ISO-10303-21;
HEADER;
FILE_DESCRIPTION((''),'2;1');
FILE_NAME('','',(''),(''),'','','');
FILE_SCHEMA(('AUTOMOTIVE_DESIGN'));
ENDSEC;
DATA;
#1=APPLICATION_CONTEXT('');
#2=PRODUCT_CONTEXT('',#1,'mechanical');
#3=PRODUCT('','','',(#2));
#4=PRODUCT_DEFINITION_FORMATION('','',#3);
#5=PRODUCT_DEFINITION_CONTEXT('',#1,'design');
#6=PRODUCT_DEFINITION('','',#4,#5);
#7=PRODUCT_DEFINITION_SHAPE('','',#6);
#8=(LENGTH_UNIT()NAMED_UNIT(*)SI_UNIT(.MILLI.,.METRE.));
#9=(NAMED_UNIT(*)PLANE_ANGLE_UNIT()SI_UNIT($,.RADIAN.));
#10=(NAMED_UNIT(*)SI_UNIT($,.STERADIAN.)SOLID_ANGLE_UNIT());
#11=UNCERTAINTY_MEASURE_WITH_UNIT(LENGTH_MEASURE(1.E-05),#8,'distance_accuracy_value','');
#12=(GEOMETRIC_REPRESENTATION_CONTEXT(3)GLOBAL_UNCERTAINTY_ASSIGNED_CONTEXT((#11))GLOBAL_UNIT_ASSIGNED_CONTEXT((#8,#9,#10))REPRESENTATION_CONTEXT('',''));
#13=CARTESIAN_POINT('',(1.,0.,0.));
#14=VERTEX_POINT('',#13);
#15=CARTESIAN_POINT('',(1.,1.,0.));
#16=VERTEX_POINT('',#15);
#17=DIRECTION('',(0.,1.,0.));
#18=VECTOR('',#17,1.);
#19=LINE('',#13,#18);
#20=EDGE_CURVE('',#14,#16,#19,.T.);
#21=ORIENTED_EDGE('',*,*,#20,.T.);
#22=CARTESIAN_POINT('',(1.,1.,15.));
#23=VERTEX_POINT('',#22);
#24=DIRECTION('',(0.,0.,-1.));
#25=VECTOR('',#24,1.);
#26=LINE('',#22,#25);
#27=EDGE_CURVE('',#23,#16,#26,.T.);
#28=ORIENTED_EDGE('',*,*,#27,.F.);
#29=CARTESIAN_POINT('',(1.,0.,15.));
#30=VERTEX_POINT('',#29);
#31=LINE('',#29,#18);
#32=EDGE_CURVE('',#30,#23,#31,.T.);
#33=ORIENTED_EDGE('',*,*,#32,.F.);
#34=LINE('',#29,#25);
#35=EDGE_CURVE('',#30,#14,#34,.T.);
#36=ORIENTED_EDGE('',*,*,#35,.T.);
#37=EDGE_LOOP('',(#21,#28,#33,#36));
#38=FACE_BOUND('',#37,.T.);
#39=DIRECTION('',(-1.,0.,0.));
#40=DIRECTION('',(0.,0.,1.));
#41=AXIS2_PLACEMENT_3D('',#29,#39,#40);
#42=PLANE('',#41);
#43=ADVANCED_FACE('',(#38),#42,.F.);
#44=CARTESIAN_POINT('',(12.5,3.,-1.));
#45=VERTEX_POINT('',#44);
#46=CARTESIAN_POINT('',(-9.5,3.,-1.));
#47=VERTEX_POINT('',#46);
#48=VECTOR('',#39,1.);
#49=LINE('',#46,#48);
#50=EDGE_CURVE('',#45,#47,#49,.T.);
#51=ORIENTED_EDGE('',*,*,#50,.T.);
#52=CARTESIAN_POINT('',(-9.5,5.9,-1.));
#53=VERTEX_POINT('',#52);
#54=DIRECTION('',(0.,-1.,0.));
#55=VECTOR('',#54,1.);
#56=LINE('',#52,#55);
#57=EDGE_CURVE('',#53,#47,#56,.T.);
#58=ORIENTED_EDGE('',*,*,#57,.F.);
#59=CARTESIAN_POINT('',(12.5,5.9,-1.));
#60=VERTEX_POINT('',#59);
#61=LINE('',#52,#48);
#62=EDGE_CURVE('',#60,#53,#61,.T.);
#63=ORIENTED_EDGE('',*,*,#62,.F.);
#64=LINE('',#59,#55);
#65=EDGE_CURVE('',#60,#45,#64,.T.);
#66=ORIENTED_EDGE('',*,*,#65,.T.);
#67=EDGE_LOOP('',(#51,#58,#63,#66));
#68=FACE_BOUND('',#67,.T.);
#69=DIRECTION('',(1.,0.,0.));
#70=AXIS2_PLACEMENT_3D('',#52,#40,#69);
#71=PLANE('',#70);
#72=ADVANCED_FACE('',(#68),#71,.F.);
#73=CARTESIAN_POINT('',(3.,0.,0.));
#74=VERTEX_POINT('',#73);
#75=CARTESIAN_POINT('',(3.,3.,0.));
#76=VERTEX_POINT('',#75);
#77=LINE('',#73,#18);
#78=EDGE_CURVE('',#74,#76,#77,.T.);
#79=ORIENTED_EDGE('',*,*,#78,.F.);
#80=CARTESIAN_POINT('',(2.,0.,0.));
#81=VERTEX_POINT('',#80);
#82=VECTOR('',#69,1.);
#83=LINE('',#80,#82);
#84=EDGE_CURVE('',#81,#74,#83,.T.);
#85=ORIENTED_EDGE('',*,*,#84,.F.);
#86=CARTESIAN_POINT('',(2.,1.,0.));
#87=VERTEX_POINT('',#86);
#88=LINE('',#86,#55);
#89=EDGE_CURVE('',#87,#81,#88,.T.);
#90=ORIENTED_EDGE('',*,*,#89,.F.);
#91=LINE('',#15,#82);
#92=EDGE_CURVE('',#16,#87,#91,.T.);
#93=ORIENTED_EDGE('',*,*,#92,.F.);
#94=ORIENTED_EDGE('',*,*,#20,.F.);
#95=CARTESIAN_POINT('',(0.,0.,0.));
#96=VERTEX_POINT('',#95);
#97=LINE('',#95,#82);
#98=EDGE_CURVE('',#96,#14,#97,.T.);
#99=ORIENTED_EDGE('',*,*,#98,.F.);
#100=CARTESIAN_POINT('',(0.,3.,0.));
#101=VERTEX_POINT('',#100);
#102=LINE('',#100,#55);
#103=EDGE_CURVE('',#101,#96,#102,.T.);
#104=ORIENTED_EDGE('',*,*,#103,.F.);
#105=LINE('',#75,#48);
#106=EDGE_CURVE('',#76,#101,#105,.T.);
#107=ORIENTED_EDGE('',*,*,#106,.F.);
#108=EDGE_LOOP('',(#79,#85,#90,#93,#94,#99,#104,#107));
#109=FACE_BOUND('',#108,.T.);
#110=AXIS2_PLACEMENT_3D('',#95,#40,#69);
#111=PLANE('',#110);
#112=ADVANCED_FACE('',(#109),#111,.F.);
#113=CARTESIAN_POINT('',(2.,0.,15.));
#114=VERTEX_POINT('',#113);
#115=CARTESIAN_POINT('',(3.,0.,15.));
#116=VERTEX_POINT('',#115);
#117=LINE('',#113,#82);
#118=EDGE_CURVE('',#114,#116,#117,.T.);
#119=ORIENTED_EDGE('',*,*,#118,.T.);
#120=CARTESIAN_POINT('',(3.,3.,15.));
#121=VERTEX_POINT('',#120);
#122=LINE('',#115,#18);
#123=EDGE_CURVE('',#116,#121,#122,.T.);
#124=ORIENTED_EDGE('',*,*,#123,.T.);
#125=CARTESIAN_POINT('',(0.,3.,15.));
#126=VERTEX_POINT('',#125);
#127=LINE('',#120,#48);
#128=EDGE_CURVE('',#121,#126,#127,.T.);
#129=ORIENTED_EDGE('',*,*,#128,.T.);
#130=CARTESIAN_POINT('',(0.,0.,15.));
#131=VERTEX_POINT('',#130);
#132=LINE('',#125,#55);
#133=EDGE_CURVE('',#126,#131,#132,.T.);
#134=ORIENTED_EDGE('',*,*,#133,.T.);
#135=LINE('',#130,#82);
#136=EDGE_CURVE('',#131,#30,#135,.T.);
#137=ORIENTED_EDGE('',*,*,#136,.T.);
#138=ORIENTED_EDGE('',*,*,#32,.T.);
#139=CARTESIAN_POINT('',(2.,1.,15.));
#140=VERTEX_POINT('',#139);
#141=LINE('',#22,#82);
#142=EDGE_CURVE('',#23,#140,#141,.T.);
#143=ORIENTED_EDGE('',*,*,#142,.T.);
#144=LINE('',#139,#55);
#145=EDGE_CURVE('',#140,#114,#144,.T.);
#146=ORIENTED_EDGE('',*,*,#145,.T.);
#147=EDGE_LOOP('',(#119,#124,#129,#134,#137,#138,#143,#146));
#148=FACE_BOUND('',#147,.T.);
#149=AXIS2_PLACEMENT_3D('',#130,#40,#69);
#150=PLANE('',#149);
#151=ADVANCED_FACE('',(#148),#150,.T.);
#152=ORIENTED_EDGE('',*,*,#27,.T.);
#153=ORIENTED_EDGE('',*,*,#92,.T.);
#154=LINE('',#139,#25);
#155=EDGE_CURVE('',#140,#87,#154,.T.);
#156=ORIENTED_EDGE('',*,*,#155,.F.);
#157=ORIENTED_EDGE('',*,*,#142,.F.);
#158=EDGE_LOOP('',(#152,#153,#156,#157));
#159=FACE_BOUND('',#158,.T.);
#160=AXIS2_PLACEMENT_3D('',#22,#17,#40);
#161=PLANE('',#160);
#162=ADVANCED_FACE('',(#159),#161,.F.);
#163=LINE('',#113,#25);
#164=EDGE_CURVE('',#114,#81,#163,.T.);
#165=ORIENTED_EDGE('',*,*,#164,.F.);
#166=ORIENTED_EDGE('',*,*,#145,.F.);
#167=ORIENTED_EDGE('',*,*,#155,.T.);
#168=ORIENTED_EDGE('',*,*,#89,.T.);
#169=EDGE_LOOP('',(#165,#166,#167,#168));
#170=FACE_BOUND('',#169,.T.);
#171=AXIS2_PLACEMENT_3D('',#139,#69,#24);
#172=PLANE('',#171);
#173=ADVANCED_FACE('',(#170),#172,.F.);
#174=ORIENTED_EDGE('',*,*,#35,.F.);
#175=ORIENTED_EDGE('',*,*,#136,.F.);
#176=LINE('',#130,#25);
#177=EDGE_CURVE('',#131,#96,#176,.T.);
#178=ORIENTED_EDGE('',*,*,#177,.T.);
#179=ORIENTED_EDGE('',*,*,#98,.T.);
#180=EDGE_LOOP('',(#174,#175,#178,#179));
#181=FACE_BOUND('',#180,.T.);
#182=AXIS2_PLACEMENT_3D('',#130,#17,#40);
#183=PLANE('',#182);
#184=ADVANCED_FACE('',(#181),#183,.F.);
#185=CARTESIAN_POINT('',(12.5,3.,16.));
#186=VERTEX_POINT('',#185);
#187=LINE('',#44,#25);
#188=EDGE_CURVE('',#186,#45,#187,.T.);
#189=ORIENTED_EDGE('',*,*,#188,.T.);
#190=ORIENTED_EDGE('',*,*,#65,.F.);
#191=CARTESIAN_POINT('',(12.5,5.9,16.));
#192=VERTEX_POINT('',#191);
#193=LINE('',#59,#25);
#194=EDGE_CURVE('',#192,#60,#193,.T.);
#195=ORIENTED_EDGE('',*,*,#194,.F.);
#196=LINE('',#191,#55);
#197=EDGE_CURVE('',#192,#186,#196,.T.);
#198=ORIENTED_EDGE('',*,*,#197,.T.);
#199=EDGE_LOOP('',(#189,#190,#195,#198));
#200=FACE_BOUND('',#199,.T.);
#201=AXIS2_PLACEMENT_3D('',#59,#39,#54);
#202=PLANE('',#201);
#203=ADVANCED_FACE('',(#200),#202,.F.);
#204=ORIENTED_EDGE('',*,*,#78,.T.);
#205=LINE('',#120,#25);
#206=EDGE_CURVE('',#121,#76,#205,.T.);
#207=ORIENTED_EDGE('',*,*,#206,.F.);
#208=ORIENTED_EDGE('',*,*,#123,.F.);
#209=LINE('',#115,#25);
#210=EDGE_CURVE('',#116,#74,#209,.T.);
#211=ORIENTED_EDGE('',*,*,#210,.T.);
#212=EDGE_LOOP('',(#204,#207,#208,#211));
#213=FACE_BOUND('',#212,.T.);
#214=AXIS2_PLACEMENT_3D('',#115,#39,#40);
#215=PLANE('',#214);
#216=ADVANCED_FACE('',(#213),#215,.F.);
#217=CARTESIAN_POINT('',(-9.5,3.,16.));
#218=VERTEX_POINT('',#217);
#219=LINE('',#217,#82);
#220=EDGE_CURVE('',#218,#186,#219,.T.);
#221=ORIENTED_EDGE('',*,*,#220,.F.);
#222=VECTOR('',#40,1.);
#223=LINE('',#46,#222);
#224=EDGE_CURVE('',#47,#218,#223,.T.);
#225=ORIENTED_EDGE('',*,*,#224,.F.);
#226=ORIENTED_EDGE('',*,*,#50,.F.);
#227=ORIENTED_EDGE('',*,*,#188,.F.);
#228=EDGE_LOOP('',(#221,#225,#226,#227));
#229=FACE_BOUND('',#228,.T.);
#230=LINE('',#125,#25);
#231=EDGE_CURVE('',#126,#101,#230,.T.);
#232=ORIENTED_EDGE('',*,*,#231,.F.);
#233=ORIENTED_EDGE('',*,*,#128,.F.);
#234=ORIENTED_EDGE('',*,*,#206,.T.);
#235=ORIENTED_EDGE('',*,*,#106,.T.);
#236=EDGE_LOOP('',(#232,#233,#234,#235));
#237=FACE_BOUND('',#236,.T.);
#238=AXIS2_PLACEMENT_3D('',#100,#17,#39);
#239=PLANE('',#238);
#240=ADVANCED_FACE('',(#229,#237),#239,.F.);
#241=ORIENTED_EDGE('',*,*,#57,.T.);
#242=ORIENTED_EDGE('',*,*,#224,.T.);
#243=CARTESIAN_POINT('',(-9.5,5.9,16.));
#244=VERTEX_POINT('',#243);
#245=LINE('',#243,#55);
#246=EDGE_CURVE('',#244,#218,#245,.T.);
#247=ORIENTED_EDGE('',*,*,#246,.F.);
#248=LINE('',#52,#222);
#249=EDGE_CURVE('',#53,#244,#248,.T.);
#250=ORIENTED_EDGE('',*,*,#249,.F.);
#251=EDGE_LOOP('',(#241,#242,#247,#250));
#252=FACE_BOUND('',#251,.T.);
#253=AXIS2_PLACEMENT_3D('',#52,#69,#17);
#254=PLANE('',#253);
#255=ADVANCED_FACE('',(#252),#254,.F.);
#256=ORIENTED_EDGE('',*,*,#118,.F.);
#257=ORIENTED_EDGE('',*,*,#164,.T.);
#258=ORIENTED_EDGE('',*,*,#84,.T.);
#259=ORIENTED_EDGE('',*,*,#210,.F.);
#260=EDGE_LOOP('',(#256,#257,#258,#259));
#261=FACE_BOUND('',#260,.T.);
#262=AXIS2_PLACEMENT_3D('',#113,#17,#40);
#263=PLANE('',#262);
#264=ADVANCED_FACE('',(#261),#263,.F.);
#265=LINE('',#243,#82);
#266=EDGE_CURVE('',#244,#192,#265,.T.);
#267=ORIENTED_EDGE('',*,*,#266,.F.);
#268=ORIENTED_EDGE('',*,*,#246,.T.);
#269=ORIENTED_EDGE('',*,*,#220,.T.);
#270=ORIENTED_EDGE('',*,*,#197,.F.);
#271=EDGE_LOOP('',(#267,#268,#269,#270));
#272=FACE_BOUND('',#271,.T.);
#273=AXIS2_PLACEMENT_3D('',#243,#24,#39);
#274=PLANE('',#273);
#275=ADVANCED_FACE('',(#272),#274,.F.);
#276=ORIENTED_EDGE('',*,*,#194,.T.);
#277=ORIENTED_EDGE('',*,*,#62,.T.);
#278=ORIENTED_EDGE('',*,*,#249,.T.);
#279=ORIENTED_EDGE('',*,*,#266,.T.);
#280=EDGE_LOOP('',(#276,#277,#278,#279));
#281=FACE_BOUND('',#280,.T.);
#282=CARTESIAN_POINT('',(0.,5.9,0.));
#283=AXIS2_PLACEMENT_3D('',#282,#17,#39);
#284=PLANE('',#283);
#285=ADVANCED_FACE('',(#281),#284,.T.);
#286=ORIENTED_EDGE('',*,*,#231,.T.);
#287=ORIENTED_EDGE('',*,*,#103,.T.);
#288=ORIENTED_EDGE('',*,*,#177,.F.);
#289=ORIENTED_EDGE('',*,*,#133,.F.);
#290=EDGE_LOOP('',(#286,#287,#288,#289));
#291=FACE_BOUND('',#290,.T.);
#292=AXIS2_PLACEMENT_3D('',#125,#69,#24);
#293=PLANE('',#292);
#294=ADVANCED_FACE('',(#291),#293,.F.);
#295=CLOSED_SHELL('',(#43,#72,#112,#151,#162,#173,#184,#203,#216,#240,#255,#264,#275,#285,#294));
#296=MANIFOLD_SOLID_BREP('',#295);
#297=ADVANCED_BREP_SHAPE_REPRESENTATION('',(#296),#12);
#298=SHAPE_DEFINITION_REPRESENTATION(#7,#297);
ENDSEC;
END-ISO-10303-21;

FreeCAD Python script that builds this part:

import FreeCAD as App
import Part
import Sketcher
from FreeCAD import Vector

doc = App.newDocument("Part")
body = doc.addObject("PartDesign::Body", "Body")

sketch1 = doc.addObject("Sketcher::SketchObject", "Sketch")
body.addObject(sketch1)
sketch1.AttachmentSupport = (doc.XY_Plane, [""])
sketch1.MapMode = "FlatFace"
sketch1.addGeometry([
    Part.LineSegment(Vector(0, 0, 0), Vector(1, 0, 0)),
    Part.LineSegment(Vector(1, 0, 0), Vector(1, 1, 0)),
    Part.LineSegment(Vector(1, 1, 0), Vector(2, 1, 0)),
    Part.LineSegment(Vector(2, 1, 0), Vector(2, 0, 0)),
    Part.LineSegment(Vector(2, 0, 0), Vector(3, 0, 0)),
    Part.LineSegment(Vector(3, 0, 0), Vector(3, 3, 0)),
    Part.LineSegment(Vector(3, 3, 0), Vector(0, 3, 0)),
    Part.LineSegment(Vector(0, 3, 0), Vector(0, 0, 0)),
], False)
sketch1.addConstraint([
    Sketcher.Constraint("Coincident", 0, 2, 1, 1),
    Sketcher.Constraint("Coincident", 1, 2, 2, 1),
    Sketcher.Constraint("Coincident", 2, 2, 3, 1),
    Sketcher.Constraint("Coincident", 3, 2, 4, 1),
    Sketcher.Constraint("Coincident", 4, 2, 5, 1),
    Sketcher.Constraint("Coincident", 5, 2, 6, 1),
    Sketcher.Constraint("Coincident", 6, 2, 7, 1),
    Sketcher.Constraint("Coincident", 7, 2, 0, 1),
    Sketcher.Constraint("Horizontal", 0),
    Sketcher.Constraint("Vertical", 1),
    Sketcher.Constraint("Horizontal", 2),
    Sketcher.Constraint("Vertical", 3),
    Sketcher.Constraint("Horizontal", 4),
    Sketcher.Constraint("Vertical", 5),
    Sketcher.Constraint("Horizontal", 6),
    Sketcher.Constraint("Vertical", 7),
    Sketcher.Constraint("Coincident", 7, 2, -1, 1),
    Sketcher.Constraint("PointOnObject", 3, 2, -1),
    Sketcher.Constraint("Equal", 0, 2),
    Sketcher.Constraint("Equal", 2, 4),
    Sketcher.Constraint("Equal", 4, 1),
    Sketcher.Constraint("Equal", 6, 5),
    Sketcher.Constraint("DistanceX", 0, 1, 0, 2, 1.0),
])
pad1 = doc.addObject("PartDesign::Pad", "Pad")
body.addObject(pad1)
pad1.Profile = sketch1
pad1.Length = 15

sketch2 = doc.addObject("Sketcher::SketchObject", "Sketch001")
body.addObject(sketch2)
sketch2.AttachmentSupport = (doc.XZ_Plane, [""])
sketch2.MapMode = "FlatFace"
sketch2.AttachmentOffset = App.Placement(Vector(0, 0, -3), App.Rotation())
sketch2.addGeometry([
    Part.LineSegment(Vector(-10, -1, 0), Vector(-10, 16, 0)),
    Part.LineSegment(Vector(-10, 16, 0), Vector(12, 16, 0)),
    Part.LineSegment(Vector(12, 16, 0), Vector(12, -1, 0)),
    Part.LineSegment(Vector(12, -1, 0), Vector(-10, -1, 0)),
], False)
sketch2.addConstraint([
    Sketcher.Constraint("Coincident", 0, 2, 1, 1),
    Sketcher.Constraint("Coincident", 1, 2, 2, 1),
    Sketcher.Constraint("Coincident", 2, 2, 3, 1),
    Sketcher.Constraint("Coincident", 3, 2, 0, 1),
    Sketcher.Constraint("Vertical", 0),
    Sketcher.Constraint("Horizontal", 1),
    Sketcher.Constraint("Vertical", 2),
    Sketcher.Constraint("Horizontal", 3),
    Sketcher.Constraint("DistanceX", 1, 1, 1, 2, 22.0),
    Sketcher.Constraint("DistanceY", 0, 1, 0, 2, 17.0),
    Sketcher.Constraint("DistanceY", -1, 1, 0, 2, 16.0),
    Sketcher.Constraint("DistanceX", 0, 2, -1, 1, 9.5),
])
pad2 = doc.addObject("PartDesign::Pad", "Pad001")
body.addObject(pad2)
pad2.Profile = sketch2
pad2.Length = 2.9
pad2.Reversed = True

doc.recompute()
